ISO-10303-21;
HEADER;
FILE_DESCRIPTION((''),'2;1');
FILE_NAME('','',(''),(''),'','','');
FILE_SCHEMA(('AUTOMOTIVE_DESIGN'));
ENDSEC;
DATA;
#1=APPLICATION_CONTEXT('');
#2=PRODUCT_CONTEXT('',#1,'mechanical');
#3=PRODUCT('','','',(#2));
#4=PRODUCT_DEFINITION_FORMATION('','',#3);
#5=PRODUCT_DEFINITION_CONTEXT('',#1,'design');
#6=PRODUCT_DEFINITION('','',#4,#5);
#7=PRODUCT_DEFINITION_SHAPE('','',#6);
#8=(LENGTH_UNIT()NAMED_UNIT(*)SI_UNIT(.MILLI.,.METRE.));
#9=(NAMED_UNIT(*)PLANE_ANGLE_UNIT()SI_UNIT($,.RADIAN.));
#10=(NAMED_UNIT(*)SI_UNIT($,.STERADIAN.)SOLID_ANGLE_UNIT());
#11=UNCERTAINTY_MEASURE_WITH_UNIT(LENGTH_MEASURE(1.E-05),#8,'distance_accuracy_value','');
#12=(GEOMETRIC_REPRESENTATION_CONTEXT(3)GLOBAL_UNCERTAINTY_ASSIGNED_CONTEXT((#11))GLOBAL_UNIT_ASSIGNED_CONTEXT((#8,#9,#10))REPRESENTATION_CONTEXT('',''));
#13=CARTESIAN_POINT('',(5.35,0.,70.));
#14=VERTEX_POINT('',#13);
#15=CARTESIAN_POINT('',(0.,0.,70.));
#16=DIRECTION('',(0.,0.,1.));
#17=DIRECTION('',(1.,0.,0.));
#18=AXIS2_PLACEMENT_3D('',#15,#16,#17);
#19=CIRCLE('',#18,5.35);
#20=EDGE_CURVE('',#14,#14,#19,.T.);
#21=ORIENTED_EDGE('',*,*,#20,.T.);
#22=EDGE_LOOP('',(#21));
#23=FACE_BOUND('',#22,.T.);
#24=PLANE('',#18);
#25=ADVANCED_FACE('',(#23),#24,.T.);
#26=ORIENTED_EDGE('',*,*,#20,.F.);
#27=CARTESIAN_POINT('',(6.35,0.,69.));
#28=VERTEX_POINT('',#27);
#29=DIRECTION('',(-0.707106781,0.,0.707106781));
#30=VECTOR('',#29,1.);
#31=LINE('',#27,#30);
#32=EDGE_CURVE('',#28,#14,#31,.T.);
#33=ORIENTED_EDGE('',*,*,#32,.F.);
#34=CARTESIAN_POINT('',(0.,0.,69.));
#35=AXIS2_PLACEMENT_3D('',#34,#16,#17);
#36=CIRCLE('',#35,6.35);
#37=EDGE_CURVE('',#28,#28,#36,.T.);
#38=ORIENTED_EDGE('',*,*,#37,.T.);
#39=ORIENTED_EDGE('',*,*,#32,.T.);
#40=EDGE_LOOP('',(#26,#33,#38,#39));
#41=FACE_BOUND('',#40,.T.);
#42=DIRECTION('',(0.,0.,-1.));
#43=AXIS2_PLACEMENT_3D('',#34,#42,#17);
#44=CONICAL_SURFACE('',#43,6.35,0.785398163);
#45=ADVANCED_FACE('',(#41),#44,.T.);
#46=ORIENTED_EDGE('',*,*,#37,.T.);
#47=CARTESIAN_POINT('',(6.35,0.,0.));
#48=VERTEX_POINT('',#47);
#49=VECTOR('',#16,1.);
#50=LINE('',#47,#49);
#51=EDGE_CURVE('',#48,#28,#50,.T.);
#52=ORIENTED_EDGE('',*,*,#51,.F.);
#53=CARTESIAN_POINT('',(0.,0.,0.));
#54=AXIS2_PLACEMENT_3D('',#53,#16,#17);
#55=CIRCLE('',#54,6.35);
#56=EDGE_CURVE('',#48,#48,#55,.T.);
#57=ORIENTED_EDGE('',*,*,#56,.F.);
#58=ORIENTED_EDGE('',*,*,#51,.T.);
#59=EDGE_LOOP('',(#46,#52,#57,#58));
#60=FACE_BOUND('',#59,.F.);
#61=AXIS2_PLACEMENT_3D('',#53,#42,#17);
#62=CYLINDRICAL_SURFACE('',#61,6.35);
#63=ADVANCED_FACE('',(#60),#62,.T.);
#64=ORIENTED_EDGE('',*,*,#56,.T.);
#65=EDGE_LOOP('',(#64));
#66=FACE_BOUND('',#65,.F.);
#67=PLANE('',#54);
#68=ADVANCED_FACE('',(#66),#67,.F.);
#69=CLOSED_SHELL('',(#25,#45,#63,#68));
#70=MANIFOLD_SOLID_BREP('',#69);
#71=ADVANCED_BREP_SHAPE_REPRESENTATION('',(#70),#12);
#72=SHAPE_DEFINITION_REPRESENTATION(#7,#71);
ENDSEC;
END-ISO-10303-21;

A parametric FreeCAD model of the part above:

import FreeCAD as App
import Part
import Sketcher

V = App.Vector
Q = App.Units.Quantity


def edges_at(feature, points):
    """Names of the edges that pass closest to the given points."""
    edges = feature.Shape.Edges
    near = lambda p: min(range(len(edges)), key=lambda i: edges[i].distToShape(Part.Vertex(*p))[0])
    return sorted({f"Edge{near(p) + 1}" for p in points})

doc = App.newDocument("Part")
body = doc.addObject("PartDesign::Body", "Body")

# Sketch on XY plane
sketch1 = body.newObject("Sketcher::SketchObject", "Sketch")
sketch1.AttachmentSupport = (doc.getObject("XY_Plane"), [""])
sketch1.MapMode = "FlatFace"
sketch1.addGeometry(Part.Circle(V(0, 0, 0), V(0, 0, 1), 6), False)
sketch1.addConstraint(Sketcher.Constraint("Coincident", 0, 3, -1, 1))
sketch1.addConstraint(Sketcher.Constraint("Diameter", 0, Q("12.7 mm")))
pad1 = body.newObject("PartDesign::Pad", "Pad")
pad1.Profile = sketch1
pad1.Length = 70
doc.recompute()

chamfer = body.newObject("PartDesign::Chamfer", "Chamfer")
chamfer.Base = (pad1, edges_at(pad1, [(-6.35, 0, 70)]))
chamfer.Size = 1

doc.recompute()
